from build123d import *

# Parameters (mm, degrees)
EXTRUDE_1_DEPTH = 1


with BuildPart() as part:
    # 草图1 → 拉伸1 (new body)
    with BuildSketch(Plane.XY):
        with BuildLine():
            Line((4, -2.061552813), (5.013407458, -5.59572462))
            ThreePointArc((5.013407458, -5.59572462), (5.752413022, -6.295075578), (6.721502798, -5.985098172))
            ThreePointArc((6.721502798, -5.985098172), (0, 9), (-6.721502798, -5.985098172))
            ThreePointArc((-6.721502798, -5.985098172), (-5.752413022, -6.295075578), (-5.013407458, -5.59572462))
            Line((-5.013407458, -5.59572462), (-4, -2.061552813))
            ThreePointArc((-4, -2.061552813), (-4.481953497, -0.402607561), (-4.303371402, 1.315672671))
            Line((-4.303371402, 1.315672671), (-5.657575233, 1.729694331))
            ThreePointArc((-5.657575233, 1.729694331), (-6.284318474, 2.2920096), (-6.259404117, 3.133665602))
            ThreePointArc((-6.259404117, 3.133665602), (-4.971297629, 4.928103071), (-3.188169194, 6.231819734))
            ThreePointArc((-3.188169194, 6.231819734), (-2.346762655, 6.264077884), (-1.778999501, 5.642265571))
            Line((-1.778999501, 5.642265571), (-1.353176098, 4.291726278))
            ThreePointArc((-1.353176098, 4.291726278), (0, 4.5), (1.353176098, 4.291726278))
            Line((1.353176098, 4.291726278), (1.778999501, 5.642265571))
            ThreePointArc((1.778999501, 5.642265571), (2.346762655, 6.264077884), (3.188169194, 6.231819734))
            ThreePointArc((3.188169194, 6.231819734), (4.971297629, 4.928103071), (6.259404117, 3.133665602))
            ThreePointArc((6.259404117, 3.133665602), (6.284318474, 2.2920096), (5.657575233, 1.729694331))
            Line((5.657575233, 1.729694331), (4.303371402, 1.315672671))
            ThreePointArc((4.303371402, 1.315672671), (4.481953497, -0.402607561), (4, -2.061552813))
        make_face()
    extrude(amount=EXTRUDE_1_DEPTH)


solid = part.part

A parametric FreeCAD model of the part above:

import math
import FreeCAD as App
import Part
import Sketcher
Q = App.Units.Quantity

doc = App.newDocument("Part")
body = doc.addObject("PartDesign::Body", "Body")

# Sketch on XY plane
sketch1 = body.newObject("Sketcher::SketchObject", "Sketch")
sketch1.AttachmentSupport = (doc.getObject("XY_Plane"), [""])
sketch1.MapMode = "FlatFace"
sketch1.addGeometry(Part.LineSegment(App.Vector(4, -2.1, 0), App.Vector(5, -5.6, 0)), False)
sketch1.addGeometry(Part.ArcOfCircle(Part.Circle(App.Vector(6, -5.3, 0), App.Vector(0, 0, 1), 1), math.radians(-164), math.radians(-42)), False)
sketch1.addGeometry(Part.ArcOfCircle(Part.Circle(App.Vector(0, 0, 0), App.Vector(0, 0, 1), 9), math.radians(-42), math.radians(222)), False)
sketch1.addGeometry(Part.ArcOfCircle(Part.Circle(App.Vector(-6, -5.3, 0), App.Vector(0, 0, 1), 1), math.radians(-138), math.radians(-16)), False)
sketch1.addGeometry(Part.LineSegment(App.Vector(-5, -5.6, 0), App.Vector(-4, -2.1, 0)), False)
sketch1.addGeometry(Part.ArcOfCircle(Part.Circle(App.Vector(0, 0, 0), App.Vector(0, 0, 1), 4.5), math.radians(163), math.radians(207)), False)
sketch1.addGeometry(Part.LineSegment(App.Vector(-4.3, 1.3, 0), App.Vector(-5.7, 1.7, 0)), False)
sketch1.addGeometry(Part.ArcOfCircle(Part.Circle(App.Vector(-5.4, 2.7, 0), App.Vector(0, 0, 1), 1), math.radians(153), math.radians(253)), False)
sketch1.addGeometry(Part.ArcOfCircle(Part.Circle(App.Vector(0, 0, 0), App.Vector(0, 0, 1), 7), math.radians(117), math.radians(153)), False)
sketch1.addGeometry(Part.ArcOfCircle(Part.Circle(App.Vector(-2.7, 5.3, 0), App.Vector(0, 0, 1), 1), math.radians(17), math.radians(117)), False)
sketch1.addGeometry(Part.LineSegment(App.Vector(-1.8, 5.6, 0), App.Vector(-1.4, 4.3, 0)), False)
sketch1.addGeometry(Part.ArcOfCircle(Part.Circle(App.Vector(0, 0, 0), App.Vector(0, 0, 1), 4.5), math.radians(72), math.radians(108)), False)
sketch1.addGeometry(Part.LineSegment(App.Vector(1.4, 4.3, 0), App.Vector(1.8, 5.6, 0)), False)
sketch1.addGeometry(Part.ArcOfCircle(Part.Circle(App.Vector(2.7, 5.3, 0), App.Vector(0, 0, 1), 1), math.radians(63), math.radians(163)), False)
sketch1.addGeometry(Part.ArcOfCircle(Part.Circle(App.Vector(0, 0, 0), App.Vector(0, 0, 1), 7), math.radians(27), math.radians(63)), False)
sketch1.addGeometry(Part.ArcOfCircle(Part.Circle(App.Vector(5.4, 2.7, 0), App.Vector(0, 0, 1), 1), math.radians(-73), math.radians(27)), False)
sketch1.addGeometry(Part.LineSegment(App.Vector(5.7, 1.7, 0), App.Vector(4.3, 1.3, 0)), False)
sketch1.addGeometry(Part.ArcOfCircle(Part.Circle(App.Vector(0, 0, 0), App.Vector(0, 0, 1), 4.5), math.radians(-27), math.radians(17)), False)
sketch1.addConstraint(Sketcher.Constraint("Tangent", 0, 2, 1, 1))
sketch1.addConstraint(Sketcher.Constraint("Tangent", 1, 2, 2, 1))
sketch1.addConstraint(Sketcher.Constraint("Tangent", 2, 2, 3, 1))
sketch1.addConstraint(Sketcher.Constraint("Tangent", 3, 2, 4, 1))
sketch1.addConstraint(Sketcher.Constraint("Coincident", 4, 2, 5, 2))
sketch1.addConstraint(Sketcher.Constraint("Coincident", 5, 1, 6, 1))
sketch1.addConstraint(Sketcher.Constraint("Tangent", 6, 2, 7, 2))
sketch1.addConstraint(Sketcher.Constraint("Tangent", 7, 1, 8, 2))
sketch1.addConstraint(Sketcher.Constraint("Tangent", 8, 1, 9, 2))
sketch1.addConstraint(Sketcher.Constraint("Tangent", 9, 1, 10, 1))
sketch1.addConstraint(Sketcher.Constraint("Coincident", 10, 2, 11, 2))
sketch1.addConstraint(Sketcher.Constraint("Coincident", 11, 1, 12, 1))
sketch1.addConstraint(Sketcher.Constraint("Tangent", 12, 2, 13, 2))
sketch1.addConstraint(Sketcher.Constraint("Tangent", 13, 1, 14, 2))
sketch1.addConstraint(Sketcher.Constraint("Tangent", 14, 1, 15, 2))
sketch1.addConstraint(Sketcher.Constraint("Tangent", 15, 1, 16, 1))
sketch1.addConstraint(Sketcher.Constraint("Coincident", 16, 2, 17, 2))
sketch1.addConstraint(Sketcher.Constraint("Coincident", 17, 1, 0, 1))
sketch1.addConstraint(Sketcher.Constraint("Coincident", 2, 3, -1, 1))
sketch1.addConstraint(Sketcher.Constraint("Coincident", 5, 3, -1, 1))
sketch1.addConstraint(Sketcher.Constraint("Coincident", 8, 3, -1, 1))
sketch1.addConstraint(Sketcher.Constraint("Coincident", 11, 3, -1, 1))
sketch1.addConstraint(Sketcher.Constraint("Coincident", 14, 3, -1, 1))
sketch1.addConstraint(Sketcher.Constraint("Coincident", 17, 3, -1, 1))
sketch1.addConstraint(Sketcher.Constraint("Equal", 1, 3))
sketch1.addConstraint(Sketcher.Constraint("Equal", 3, 7))
sketch1.addConstraint(Sketcher.Constraint("Equal", 7, 9))
sketch1.addConstraint(Sketcher.Constraint("Equal", 5, 11))
sketch1.addConstraint(Sketcher.Constraint("Equal", 9, 13))
sketch1.addConstraint(Sketcher.Constraint("Equal", 8, 14))
sketch1.addConstraint(Sketcher.Constraint("Equal", 13, 15))
sketch1.addConstraint(Sketcher.Constraint("Equal", 11, 17))
sketch1.addConstraint(Sketcher.Constraint("Symmetric", 0, 2, 3, 2, -2))
sketch1.addConstraint(Sketcher.Constraint("Symmetric", 9, 1, 12, 2, -2))
sketch1.addConstraint(Sketcher.Constraint("Symmetric", 6, 2, 15, 1, -2))
sketch1.addConstraint(Sketcher.Constraint("Equal", 6, 10))
sketch1.addConstraint(Sketcher.Constraint("Radius", 1, 1.0))
sketch1.addConstraint(Sketcher.Constraint("Radius", 2, 9.0))
sketch1.addConstraint(Sketcher.Constraint("Radius", 8, 7.0))
sketch1.addConstraint(Sketcher.Constraint("Radius", 5, 4.5))
sketch1.addConstraint(Sketcher.Constraint("Angle", 0, Q("-74 deg")))
sketch1.addConstraint(Sketcher.Constraint("Angle", 6, Q("163 deg")))
sketch1.addConstraint(Sketcher.Constraint("DistanceX", 4, 2, -1, 1, 4.0))
sketch1.addConstraint(Sketcher.Constraint("Angle", 10, Q("-72.5 deg")))
sketch1.addConstraint(Sketcher.Constraint("DistanceY", -1, 1, 7, 3, 2.685999))
pad1 = body.newObject("PartDesign::Pad", "Pad")
pad1.Profile = sketch1
pad1.Length = 1

doc.recompute()
